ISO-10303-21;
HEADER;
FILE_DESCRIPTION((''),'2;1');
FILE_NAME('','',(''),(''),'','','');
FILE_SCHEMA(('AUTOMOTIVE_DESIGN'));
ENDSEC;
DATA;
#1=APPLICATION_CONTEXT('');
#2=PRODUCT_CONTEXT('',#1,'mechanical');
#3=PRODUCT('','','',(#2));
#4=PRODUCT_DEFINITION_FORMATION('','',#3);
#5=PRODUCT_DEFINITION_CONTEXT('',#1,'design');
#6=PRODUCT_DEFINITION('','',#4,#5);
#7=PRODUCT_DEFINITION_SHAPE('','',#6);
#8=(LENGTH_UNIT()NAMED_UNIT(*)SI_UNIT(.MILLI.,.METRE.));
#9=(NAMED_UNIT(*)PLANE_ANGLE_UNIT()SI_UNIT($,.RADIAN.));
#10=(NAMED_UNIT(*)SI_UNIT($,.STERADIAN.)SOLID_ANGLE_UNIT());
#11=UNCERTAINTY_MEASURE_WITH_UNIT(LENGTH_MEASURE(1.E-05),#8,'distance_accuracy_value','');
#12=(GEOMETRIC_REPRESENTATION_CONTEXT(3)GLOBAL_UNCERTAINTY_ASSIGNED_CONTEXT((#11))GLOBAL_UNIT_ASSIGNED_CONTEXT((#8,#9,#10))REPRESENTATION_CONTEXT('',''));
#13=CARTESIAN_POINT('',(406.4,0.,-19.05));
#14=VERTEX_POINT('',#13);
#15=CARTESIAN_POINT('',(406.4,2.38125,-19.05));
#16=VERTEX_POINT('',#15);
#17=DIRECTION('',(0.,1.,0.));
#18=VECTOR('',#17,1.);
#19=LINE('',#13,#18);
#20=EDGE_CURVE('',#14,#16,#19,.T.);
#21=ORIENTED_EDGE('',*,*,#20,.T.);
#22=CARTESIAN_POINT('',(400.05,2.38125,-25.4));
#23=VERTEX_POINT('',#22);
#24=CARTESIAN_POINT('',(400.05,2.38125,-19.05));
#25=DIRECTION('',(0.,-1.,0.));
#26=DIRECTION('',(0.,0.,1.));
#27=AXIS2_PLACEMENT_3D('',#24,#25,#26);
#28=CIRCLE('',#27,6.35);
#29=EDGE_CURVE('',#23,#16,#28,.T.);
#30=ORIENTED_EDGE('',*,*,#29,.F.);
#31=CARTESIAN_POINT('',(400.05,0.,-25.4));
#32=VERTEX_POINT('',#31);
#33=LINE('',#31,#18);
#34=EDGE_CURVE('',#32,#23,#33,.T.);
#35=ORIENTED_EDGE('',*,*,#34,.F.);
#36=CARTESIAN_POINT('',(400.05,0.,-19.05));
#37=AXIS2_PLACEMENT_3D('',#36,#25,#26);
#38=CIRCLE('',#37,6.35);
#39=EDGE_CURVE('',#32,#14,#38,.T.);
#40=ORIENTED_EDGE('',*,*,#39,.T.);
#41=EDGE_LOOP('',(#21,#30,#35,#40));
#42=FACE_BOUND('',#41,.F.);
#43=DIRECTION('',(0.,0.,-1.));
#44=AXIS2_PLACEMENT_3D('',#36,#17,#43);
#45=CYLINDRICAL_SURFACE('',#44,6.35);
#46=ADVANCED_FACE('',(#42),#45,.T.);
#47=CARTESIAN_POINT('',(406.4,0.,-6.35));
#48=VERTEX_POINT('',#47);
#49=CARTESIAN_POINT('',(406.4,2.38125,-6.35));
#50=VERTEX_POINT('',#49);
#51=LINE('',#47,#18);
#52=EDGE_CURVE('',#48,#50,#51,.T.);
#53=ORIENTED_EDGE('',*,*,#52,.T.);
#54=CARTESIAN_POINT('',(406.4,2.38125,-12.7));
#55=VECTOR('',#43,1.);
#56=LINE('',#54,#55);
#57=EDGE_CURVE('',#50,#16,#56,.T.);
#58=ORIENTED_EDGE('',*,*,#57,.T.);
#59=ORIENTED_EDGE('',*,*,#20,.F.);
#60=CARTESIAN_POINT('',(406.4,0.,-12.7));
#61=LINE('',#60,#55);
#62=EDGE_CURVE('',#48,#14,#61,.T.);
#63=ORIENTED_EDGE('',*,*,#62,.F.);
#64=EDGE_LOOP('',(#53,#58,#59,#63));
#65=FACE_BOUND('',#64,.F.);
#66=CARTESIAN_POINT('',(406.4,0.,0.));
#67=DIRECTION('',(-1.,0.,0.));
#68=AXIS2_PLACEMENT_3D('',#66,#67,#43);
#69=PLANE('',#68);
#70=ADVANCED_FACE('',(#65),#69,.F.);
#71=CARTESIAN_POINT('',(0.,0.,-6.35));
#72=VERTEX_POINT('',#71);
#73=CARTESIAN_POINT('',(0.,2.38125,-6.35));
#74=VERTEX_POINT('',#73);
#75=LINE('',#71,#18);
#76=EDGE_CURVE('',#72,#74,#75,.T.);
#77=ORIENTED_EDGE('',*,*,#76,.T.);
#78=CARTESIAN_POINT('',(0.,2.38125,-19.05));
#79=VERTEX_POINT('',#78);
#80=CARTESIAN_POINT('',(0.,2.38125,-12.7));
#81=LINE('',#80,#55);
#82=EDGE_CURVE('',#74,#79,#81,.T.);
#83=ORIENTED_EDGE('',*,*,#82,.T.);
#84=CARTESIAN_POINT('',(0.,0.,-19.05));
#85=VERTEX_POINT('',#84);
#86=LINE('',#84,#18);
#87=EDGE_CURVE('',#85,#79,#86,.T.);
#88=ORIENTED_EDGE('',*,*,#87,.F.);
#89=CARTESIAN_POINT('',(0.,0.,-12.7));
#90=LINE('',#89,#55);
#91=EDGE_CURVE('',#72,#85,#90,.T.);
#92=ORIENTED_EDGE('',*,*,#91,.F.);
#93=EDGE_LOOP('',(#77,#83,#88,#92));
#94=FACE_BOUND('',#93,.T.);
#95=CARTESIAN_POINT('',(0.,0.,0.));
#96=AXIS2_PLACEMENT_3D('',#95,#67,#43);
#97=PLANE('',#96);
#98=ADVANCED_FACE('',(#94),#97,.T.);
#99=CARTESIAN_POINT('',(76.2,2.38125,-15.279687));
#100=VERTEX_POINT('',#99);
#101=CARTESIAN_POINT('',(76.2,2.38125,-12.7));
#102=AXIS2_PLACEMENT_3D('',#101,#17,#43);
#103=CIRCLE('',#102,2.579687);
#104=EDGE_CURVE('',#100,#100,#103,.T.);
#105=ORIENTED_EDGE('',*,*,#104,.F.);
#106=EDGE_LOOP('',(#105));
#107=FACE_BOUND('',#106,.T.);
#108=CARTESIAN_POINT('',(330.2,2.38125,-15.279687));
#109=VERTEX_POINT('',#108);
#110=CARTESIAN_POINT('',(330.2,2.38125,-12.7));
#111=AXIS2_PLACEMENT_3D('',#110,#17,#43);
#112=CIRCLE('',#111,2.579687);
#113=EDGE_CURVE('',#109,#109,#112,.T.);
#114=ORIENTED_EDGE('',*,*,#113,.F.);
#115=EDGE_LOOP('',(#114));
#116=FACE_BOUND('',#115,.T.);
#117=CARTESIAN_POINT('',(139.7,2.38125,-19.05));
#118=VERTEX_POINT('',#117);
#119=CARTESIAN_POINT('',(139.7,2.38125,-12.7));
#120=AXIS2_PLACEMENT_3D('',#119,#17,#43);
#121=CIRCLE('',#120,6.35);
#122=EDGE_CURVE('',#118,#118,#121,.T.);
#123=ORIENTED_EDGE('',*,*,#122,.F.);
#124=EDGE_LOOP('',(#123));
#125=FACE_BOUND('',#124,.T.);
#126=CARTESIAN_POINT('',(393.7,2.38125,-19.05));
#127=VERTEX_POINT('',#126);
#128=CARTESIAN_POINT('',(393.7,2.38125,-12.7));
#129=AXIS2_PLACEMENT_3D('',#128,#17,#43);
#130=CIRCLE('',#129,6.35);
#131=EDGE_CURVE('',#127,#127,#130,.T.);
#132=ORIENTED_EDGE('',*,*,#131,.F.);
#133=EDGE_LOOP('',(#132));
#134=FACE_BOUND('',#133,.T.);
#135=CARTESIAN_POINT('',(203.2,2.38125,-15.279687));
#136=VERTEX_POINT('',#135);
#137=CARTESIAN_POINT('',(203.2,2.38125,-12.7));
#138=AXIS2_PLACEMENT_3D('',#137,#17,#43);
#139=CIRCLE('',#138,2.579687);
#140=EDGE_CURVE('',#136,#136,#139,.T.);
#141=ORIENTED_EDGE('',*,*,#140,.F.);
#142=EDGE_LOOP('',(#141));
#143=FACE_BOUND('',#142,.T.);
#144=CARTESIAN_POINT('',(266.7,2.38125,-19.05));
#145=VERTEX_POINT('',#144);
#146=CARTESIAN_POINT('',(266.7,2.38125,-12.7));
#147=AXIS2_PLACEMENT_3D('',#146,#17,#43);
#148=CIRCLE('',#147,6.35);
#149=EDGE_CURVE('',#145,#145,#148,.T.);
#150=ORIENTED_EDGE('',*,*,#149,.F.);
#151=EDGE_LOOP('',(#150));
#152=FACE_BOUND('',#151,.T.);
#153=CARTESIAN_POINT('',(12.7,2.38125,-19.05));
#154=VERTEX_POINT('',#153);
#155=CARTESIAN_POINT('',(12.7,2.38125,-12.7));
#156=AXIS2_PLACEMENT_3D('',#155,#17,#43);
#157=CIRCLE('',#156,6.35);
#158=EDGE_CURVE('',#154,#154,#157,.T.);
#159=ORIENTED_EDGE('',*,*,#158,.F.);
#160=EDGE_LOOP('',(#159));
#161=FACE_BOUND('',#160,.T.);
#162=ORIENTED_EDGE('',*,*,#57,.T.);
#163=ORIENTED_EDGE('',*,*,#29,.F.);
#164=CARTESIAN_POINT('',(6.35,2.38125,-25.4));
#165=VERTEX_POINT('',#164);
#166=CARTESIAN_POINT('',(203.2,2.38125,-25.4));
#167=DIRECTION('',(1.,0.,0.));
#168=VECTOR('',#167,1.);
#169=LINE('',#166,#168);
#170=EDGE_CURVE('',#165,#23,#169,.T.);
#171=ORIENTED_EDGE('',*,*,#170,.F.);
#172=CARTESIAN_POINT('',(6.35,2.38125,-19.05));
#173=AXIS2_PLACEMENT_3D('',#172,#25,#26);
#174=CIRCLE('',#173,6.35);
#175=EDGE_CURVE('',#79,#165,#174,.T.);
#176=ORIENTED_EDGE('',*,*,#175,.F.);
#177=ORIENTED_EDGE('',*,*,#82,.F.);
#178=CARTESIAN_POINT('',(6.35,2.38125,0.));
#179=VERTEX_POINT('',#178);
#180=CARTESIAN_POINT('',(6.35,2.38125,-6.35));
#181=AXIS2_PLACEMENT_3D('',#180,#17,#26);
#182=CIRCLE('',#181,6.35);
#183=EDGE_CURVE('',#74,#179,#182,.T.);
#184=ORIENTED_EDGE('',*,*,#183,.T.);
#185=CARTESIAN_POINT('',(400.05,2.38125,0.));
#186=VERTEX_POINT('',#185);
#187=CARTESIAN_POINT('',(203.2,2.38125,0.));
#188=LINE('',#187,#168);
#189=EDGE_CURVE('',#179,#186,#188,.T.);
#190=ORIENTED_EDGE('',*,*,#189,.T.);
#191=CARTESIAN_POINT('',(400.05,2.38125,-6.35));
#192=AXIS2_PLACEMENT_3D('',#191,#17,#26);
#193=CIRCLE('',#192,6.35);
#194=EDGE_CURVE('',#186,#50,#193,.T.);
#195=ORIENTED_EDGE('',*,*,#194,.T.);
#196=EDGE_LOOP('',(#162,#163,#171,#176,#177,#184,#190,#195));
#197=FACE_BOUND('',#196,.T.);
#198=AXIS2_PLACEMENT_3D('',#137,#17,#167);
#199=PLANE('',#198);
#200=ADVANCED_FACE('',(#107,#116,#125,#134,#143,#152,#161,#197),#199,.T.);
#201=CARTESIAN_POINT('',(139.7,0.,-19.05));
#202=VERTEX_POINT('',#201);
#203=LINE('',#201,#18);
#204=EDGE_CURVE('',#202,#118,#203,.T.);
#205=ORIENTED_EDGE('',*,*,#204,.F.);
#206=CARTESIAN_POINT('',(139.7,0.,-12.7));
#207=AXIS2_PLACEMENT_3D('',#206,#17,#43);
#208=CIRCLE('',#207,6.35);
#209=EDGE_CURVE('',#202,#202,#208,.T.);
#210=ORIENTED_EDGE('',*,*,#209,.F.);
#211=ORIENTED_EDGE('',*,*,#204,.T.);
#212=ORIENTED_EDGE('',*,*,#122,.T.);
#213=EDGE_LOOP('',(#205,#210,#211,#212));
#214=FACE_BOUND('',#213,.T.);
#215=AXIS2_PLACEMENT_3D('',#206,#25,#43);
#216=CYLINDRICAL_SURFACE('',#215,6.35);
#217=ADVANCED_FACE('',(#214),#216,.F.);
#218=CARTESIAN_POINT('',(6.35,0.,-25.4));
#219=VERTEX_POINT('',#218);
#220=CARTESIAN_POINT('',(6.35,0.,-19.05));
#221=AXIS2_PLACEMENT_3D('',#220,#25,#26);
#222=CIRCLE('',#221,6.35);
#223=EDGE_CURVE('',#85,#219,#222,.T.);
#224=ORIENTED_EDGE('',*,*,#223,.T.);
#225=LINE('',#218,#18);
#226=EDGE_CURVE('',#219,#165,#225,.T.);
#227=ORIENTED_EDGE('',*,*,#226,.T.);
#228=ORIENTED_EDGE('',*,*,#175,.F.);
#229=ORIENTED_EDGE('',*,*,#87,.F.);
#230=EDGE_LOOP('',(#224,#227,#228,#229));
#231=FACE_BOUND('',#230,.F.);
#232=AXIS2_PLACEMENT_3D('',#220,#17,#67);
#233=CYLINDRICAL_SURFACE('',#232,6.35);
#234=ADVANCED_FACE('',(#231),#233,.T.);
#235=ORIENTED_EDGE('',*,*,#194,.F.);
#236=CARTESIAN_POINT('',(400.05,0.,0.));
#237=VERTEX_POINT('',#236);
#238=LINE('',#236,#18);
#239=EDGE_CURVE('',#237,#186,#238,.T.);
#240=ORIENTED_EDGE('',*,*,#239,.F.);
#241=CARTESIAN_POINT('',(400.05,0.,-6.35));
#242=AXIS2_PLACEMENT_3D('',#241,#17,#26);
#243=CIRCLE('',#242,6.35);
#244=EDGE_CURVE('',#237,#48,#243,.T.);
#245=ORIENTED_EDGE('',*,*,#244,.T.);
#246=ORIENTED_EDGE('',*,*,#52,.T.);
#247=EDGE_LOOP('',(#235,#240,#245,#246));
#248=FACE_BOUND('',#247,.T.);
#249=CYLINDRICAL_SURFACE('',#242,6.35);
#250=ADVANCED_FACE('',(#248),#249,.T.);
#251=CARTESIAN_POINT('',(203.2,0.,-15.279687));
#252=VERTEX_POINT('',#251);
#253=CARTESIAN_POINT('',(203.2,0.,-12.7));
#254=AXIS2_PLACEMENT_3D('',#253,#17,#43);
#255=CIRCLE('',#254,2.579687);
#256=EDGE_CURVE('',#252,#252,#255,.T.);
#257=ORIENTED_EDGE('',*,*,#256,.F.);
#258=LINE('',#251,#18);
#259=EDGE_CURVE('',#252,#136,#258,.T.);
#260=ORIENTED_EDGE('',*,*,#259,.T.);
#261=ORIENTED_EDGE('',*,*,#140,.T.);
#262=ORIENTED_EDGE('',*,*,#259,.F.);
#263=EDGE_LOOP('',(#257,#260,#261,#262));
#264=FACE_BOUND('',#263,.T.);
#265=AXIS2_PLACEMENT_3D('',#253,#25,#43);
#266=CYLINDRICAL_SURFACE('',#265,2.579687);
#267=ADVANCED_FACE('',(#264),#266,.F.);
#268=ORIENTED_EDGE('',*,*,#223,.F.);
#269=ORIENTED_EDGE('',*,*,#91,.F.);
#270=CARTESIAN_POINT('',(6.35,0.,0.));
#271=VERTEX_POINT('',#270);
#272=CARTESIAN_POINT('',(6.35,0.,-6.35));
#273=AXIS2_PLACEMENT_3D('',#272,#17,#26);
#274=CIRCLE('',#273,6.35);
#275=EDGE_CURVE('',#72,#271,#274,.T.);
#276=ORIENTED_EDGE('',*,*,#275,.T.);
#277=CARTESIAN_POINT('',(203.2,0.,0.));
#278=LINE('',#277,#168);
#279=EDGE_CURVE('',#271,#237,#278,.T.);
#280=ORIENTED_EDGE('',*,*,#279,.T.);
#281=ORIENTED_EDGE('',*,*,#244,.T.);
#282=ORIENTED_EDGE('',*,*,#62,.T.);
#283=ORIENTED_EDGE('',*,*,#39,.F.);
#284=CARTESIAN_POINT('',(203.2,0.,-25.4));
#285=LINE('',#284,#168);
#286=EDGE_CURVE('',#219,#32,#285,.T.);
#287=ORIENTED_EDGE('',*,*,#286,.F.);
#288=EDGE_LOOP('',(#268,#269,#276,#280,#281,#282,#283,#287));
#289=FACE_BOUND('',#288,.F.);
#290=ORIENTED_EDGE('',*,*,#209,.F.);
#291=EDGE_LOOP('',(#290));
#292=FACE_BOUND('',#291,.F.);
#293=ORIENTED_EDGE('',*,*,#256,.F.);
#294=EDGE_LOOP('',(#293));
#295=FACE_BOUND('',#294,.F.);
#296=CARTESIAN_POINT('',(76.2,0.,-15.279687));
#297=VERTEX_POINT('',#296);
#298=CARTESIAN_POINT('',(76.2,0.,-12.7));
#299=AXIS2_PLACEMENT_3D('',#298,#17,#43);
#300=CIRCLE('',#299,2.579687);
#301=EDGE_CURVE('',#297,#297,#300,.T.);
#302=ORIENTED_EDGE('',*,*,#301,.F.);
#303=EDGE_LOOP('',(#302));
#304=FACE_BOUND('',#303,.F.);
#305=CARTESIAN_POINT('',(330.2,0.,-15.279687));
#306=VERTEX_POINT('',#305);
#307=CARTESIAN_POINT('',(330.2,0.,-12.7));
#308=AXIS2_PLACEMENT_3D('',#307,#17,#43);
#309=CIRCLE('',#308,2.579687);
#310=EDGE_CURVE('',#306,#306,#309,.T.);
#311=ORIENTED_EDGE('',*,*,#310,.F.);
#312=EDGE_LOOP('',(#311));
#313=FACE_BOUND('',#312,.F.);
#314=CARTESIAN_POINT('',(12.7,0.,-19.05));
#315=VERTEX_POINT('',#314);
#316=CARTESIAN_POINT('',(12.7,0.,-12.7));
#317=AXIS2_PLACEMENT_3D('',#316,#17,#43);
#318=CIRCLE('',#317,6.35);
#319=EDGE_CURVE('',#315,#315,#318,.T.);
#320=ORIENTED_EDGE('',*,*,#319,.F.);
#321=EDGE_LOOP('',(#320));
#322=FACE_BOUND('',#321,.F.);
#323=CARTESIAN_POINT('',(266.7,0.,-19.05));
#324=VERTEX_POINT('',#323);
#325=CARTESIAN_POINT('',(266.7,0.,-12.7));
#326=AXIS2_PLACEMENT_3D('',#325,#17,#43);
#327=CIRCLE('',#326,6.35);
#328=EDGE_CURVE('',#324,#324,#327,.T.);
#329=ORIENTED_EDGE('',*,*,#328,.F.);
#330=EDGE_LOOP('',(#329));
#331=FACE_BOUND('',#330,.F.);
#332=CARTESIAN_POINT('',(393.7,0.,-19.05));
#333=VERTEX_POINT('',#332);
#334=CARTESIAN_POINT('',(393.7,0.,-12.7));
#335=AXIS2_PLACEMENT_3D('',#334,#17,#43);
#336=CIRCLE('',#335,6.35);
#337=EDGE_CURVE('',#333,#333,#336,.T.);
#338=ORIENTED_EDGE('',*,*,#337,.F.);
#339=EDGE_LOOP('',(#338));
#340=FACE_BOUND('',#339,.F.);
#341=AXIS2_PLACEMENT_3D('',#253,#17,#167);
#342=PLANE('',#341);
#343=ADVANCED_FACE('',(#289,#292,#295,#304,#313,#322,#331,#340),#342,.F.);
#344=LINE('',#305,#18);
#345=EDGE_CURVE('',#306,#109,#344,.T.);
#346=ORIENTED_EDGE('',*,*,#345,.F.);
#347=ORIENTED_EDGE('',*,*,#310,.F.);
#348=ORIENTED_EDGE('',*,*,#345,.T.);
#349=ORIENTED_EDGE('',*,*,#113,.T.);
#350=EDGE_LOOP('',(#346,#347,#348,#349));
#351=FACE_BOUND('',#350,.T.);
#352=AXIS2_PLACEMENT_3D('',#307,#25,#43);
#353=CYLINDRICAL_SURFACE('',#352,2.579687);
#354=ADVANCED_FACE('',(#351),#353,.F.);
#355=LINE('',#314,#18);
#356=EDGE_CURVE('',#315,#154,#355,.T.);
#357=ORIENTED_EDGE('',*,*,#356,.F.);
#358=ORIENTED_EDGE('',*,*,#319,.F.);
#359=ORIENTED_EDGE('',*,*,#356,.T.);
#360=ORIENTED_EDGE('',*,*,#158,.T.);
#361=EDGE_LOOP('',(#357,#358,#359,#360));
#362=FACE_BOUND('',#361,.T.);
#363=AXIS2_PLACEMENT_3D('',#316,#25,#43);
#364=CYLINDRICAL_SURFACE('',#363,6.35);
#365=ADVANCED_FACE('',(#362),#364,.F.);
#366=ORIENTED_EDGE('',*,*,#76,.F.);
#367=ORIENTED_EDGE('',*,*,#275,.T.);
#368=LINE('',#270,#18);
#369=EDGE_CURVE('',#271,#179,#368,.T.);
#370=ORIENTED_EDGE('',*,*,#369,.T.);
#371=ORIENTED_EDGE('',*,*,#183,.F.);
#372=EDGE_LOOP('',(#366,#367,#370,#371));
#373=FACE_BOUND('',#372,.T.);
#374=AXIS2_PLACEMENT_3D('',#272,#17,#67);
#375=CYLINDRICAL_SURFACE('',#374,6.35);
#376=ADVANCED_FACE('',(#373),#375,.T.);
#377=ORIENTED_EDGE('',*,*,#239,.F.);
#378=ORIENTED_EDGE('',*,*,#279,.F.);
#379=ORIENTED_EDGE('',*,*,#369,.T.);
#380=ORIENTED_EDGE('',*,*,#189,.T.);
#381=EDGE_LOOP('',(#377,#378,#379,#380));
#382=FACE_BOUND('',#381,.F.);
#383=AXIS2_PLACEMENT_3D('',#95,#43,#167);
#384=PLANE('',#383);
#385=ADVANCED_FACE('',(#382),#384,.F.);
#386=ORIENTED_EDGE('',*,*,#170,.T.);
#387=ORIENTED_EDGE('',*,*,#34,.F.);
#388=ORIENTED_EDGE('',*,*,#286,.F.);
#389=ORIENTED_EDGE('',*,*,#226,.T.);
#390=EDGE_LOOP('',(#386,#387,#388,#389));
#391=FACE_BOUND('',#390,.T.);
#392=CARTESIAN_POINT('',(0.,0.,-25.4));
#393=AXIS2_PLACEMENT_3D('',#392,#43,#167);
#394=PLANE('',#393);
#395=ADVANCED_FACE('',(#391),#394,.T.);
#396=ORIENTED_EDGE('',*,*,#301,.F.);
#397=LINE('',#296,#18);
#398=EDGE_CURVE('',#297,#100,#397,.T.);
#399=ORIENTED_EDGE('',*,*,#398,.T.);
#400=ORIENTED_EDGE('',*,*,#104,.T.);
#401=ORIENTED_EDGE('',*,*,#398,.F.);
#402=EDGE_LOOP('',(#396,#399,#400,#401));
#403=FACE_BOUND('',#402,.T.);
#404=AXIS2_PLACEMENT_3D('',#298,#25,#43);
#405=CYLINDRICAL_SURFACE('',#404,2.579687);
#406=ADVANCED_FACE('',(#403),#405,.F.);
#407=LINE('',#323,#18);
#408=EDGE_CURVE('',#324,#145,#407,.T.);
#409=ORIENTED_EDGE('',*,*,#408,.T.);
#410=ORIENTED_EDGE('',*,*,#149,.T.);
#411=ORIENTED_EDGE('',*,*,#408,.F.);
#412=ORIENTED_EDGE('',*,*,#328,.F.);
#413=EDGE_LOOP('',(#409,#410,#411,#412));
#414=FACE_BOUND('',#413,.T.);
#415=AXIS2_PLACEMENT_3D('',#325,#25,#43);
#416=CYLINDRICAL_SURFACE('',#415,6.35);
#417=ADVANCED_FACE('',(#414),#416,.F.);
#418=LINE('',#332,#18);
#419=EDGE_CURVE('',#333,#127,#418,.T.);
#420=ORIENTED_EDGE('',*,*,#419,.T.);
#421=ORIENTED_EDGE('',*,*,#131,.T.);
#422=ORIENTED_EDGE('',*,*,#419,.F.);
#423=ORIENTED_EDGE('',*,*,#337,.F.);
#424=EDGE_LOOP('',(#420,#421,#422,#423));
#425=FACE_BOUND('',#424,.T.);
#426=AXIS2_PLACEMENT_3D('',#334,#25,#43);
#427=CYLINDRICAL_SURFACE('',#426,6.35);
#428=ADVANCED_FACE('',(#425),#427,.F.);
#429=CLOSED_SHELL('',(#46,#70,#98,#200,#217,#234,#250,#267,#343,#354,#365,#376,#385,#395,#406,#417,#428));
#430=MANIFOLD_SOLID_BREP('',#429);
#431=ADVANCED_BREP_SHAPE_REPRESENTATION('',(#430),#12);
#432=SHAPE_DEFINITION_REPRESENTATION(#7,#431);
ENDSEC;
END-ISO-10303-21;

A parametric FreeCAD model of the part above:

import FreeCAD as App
import Part
import Sketcher

V = App.Vector
Q = App.Units.Quantity


def edges_at(feature, points):
    """Names of the edges that pass closest to the given points."""
    edges = feature.Shape.Edges
    near = lambda p: min(range(len(edges)), key=lambda i: edges[i].distToShape(Part.Vertex(*p))[0])
    return sorted({f"Edge{near(p) + 1}" for p in points})

doc = App.newDocument("Part")
body = doc.addObject("PartDesign::Body", "Body")

sketch1 = doc.addObject("Sketcher::SketchObject", "Sketch")
body.addObject(sketch1)
sketch1.AttachmentSupport = (doc.XZ_Plane, [""])
sketch1.MapMode = "FlatFace"
sketch1.addGeometry(Part.LineSegment(V(0, -25.4, 0), V(0, 0, 0)), False)
sketch1.addGeometry(Part.LineSegment(V(0, 0, 0), V(406.4, 0, 0)), False)
sketch1.addGeometry(Part.LineSegment(V(406.4, 0, 0), V(406.4, -25.4, 0)), False)
sketch1.addGeometry(Part.LineSegment(V(406.4, -25.4, 0), V(0, -25.4, 0)), False)
sketch1.addGeometry(Part.Circle(V(12.7, -12.7, 0), V(0, 0, 1), 6.3), False)
sketch1.addGeometry(Part.Circle(V(76.2, -12.7, 0), V(0, 0, 1), 2.6), False)
sketch1.addGeometry(Part.Circle(V(139.7, -12.7, 0), V(0, 0, 1), 6.3), False)
sketch1.addGeometry(Part.Circle(V(203.2, -12.7, 0), V(0, 0, 1), 2.6), False)
sketch1.addGeometry(Part.Circle(V(266.7, -12.7, 0), V(0, 0, 1), 6.3), False)
sketch1.addGeometry(Part.Circle(V(330.2, -12.7, 0), V(0, 0, 1), 2.6), False)
sketch1.addGeometry(Part.Circle(V(393.7, -12.7, 0), V(0, 0, 1), 6.3), False)
sketch1.addConstraint(Sketcher.Constraint("Coincident", 0, 2, 1, 1))
sketch1.addConstraint(Sketcher.Constraint("Coincident", 1, 2, 2, 1))
sketch1.addConstraint(Sketcher.Constraint("Coincident", 2, 2, 3, 1))
sketch1.addConstraint(Sketcher.Constraint("Coincident", 3, 2, 0, 1))
sketch1.addConstraint(Sketcher.Constraint("Vertical", 0))
sketch1.addConstraint(Sketcher.Constraint("Horizontal", 1))
sketch1.addConstraint(Sketcher.Constraint("Vertical", 2))
sketch1.addConstraint(Sketcher.Constraint("Horizontal", 3))
sketch1.addConstraint(Sketcher.Constraint("Coincident", 0, 2, -1, 1))
sketch1.addConstraint(Sketcher.Constraint("Equal", 4, 6))
sketch1.addConstraint(Sketcher.Constraint("Equal", 5, 7))
sketch1.addConstraint(Sketcher.Constraint("Equal", 6, 8))
sketch1.addConstraint(Sketcher.Constraint("Equal", 7, 9))
sketch1.addConstraint(Sketcher.Constraint("Equal", 8, 10))
sketch1.addConstraint(Sketcher.Constraint("Horizontal", 4, 3, 5, 3))
sketch1.addConstraint(Sketcher.Constraint("Horizontal", 5, 3, 6, 3))
sketch1.addConstraint(Sketcher.Constraint("Horizontal", 6, 3, 7, 3))
sketch1.addConstraint(Sketcher.Constraint("Horizontal", 7, 3, 8, 3))
sketch1.addConstraint(Sketcher.Constraint("Horizontal", 8, 3, 9, 3))
sketch1.addConstraint(Sketcher.Constraint("Horizontal", 9, 3, 10, 3))
sketch1.addConstraint(Sketcher.Constraint("Diameter", 4, Q("0.5 in")))
sketch1.addConstraint(Sketcher.Constraint("DistanceX", 1, 1, 1, 2, Q("16 in")))
sketch1.addConstraint(Sketcher.Constraint("DistanceY", 0, 1, 0, 2, Q("1 in")))
sketch1.addConstraint(Sketcher.Constraint("Diameter", 5, Q("0.203125 in")))
sketch1.addConstraint(Sketcher.Constraint("DistanceX", -1, 1, 5, 3, Q("3 in")))
sketch1.addConstraint(Sketcher.Constraint("DistanceX", -1, 1, 7, 3, Q("8 in")))
sketch1.addConstraint(Sketcher.Constraint("DistanceX", -1, 1, 9, 3, Q("13 in")))
sketch1.addConstraint(Sketcher.Constraint("DistanceX", 4, 3, 6, 3, Q("5 in")))
sketch1.addConstraint(Sketcher.Constraint("DistanceX", 6, 3, 8, 3, Q("5 in")))
sketch1.addConstraint(Sketcher.Constraint("DistanceX", 8, 3, 10, 3, Q("5 in")))
sketch1.addConstraint(Sketcher.Constraint("DistanceX", -1, 1, 4, 3, Q("0.5 in")))
sketch1.addConstraint(Sketcher.Constraint("DistanceY", 4, 3, -1, 1, Q("0.5 in")))
pad1 = doc.addObject("PartDesign::Pad", "Pad")
body.addObject(pad1)
pad1.Profile = sketch1
pad1.Length = Q("0.09375 in")
pad1.Reversed = True
doc.recompute()

fillet = doc.addObject("PartDesign::Fillet", "Fillet")
body.addObject(fillet)
fillet.Base = (pad1, edges_at(pad1, [
    (0, 1.191, -25.4),
    (406.4, 1.191, -25.4),
    (406.4, 1.191, 0),
    (0, 1.191, 0),
]))
fillet.Radius = Q("0.25 in")

doc.recompute()
